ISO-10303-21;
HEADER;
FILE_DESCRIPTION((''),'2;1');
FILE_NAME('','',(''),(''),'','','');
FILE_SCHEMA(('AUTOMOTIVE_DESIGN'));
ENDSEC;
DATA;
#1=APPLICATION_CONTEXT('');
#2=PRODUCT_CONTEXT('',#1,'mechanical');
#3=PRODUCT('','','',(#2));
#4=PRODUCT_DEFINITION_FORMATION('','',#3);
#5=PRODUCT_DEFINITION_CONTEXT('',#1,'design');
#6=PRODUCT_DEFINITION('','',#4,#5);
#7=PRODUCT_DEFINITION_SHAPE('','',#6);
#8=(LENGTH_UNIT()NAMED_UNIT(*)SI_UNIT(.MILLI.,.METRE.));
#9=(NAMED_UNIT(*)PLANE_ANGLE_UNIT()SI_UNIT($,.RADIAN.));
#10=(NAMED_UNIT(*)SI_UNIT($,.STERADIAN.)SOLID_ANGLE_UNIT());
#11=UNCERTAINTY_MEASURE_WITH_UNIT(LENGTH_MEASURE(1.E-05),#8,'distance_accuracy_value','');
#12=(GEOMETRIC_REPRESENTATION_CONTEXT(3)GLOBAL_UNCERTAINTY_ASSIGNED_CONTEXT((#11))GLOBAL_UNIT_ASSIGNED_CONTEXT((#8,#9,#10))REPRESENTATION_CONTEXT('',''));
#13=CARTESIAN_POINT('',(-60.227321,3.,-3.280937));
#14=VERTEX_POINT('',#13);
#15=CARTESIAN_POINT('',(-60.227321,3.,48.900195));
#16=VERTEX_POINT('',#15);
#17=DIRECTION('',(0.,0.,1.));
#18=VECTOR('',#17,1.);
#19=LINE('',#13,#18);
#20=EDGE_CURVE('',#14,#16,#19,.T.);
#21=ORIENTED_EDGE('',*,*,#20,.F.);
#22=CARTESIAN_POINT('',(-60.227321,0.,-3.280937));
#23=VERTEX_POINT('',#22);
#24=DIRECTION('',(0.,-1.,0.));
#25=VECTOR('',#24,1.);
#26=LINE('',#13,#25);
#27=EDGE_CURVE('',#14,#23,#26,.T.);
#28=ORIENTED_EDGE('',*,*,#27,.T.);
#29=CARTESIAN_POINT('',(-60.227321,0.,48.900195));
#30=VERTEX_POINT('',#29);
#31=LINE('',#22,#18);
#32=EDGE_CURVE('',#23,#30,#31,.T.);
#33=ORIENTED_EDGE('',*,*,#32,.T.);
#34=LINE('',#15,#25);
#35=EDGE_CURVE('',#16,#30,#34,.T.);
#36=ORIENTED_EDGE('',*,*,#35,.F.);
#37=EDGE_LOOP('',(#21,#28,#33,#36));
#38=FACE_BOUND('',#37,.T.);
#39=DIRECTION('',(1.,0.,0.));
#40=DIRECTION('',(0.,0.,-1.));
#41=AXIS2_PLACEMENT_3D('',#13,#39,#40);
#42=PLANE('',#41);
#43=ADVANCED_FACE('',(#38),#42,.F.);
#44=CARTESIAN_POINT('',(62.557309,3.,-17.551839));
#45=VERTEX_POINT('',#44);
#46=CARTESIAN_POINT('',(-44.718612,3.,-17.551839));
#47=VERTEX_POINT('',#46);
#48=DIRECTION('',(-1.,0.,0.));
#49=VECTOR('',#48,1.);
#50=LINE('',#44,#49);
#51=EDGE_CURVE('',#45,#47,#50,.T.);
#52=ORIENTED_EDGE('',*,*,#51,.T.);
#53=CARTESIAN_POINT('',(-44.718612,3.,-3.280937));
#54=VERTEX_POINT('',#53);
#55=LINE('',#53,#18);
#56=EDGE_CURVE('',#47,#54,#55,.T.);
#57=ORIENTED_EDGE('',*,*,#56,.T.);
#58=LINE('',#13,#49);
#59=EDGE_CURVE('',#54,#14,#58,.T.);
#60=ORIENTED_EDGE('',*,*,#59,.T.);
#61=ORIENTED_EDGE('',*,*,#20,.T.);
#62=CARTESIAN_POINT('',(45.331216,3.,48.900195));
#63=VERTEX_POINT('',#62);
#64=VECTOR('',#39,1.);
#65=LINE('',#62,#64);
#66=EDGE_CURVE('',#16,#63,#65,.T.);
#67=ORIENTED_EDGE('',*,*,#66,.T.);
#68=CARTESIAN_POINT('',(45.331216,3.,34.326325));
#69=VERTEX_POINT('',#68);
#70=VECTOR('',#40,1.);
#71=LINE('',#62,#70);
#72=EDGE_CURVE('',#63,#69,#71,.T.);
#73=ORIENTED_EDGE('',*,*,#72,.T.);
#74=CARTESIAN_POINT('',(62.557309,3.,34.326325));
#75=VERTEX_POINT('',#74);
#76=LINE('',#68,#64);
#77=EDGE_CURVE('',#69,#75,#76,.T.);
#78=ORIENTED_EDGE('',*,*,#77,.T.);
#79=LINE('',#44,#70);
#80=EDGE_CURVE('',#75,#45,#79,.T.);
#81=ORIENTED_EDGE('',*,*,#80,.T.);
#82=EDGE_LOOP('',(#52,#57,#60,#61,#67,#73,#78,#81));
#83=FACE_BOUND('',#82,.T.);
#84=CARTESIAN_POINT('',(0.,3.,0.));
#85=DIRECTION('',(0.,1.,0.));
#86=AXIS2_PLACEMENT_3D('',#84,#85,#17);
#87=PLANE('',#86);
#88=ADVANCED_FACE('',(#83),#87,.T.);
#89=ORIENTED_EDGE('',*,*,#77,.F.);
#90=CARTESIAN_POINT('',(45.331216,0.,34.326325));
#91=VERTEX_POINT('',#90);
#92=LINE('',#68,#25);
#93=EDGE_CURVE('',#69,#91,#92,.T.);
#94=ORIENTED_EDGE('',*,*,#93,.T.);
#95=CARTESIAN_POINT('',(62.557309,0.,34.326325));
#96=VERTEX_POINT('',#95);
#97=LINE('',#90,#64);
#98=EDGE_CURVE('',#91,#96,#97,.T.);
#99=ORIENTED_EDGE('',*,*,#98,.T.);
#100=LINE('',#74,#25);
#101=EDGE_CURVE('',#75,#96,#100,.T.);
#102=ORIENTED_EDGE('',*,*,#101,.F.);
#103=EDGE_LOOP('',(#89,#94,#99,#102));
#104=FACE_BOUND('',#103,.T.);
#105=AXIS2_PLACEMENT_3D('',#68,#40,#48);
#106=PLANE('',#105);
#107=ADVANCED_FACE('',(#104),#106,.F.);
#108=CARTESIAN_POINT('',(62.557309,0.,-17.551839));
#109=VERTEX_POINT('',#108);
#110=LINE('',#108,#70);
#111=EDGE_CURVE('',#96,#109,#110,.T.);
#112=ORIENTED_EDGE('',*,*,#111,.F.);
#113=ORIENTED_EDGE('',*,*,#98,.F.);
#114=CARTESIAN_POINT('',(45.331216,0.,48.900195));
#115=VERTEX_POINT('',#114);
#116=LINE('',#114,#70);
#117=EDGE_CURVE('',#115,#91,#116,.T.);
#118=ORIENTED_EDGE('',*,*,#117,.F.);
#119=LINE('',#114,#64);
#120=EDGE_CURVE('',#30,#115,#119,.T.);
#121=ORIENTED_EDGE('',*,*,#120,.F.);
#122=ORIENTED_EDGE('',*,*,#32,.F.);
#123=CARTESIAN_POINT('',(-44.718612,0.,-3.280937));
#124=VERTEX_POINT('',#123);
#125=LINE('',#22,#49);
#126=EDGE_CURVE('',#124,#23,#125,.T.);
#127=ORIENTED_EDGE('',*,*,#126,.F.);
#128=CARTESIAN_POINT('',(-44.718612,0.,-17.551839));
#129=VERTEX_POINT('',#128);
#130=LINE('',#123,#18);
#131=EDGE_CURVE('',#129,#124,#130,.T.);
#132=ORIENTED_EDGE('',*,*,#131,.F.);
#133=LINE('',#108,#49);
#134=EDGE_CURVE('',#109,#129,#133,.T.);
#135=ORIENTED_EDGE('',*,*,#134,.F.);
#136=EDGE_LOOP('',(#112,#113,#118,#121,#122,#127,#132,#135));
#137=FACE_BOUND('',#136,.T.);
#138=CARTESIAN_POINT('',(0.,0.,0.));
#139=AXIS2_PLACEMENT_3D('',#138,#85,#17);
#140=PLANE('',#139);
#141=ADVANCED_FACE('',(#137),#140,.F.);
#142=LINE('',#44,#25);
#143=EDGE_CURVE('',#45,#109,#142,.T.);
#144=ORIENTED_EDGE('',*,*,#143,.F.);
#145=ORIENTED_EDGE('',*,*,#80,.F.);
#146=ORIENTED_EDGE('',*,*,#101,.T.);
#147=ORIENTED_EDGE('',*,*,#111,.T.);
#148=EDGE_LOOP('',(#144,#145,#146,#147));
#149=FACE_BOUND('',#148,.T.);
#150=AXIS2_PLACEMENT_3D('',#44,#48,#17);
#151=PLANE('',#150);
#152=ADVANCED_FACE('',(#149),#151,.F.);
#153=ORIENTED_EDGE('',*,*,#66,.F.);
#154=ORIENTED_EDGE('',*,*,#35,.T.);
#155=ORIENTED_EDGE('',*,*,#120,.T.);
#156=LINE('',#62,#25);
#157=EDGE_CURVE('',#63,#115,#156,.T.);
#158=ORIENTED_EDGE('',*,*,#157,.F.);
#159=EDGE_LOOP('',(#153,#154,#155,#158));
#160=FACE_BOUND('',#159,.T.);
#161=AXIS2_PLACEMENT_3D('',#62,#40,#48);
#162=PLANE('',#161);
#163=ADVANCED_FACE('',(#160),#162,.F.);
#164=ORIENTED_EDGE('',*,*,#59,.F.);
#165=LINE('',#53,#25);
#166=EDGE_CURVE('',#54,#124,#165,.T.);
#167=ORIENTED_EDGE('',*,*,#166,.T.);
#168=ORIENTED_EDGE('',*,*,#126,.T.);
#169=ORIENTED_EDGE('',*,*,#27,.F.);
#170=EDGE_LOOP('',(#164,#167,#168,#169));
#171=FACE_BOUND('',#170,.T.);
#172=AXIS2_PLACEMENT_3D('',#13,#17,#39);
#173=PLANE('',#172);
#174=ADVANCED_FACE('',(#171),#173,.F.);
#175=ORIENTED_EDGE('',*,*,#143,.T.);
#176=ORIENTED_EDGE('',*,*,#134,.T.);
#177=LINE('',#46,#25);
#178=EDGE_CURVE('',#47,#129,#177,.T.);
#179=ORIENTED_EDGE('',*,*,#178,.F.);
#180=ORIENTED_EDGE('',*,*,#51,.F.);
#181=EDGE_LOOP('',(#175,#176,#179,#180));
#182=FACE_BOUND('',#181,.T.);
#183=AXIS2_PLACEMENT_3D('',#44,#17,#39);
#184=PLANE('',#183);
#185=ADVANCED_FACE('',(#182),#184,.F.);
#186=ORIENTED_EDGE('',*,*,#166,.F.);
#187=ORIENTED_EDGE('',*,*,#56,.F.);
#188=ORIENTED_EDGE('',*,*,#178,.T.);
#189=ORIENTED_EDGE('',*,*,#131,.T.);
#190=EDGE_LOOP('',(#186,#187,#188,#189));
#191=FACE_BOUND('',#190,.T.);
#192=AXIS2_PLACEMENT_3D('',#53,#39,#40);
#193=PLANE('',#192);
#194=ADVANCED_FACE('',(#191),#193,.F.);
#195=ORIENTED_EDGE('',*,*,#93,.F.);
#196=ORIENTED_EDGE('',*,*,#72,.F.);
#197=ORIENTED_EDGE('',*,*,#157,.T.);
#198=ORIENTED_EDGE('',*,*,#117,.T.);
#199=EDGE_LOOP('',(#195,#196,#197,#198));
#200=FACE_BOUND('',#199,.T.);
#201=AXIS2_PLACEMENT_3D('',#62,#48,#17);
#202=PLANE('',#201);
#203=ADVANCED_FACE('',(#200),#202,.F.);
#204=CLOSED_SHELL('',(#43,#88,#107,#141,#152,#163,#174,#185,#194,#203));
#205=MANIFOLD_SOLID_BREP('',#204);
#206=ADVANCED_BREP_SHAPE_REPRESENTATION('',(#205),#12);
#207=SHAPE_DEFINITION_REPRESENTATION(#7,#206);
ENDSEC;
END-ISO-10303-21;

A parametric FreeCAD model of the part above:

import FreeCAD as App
import Part
import Sketcher
from FreeCAD import Vector
Q = App.Units.Quantity

doc = App.newDocument("Part")
params = doc.addObject("Spreadsheet::Sheet", "Params")
for row, (alias, value) in enumerate([
    ("pad1_length", "3 mm"),
], start=1):
    params.set(f"A{row}", alias)
    params.set(f"B{row}", "=" + value)
    params.setAlias(f"B{row}", alias)

body = doc.addObject("PartDesign::Body", "Body")

# Sketch on XZ plane
sketch1 = doc.addObject("Sketcher::SketchObject", "Sketch")
body.addObject(sketch1)
sketch1.AttachmentSupport = (doc.XZ_Plane, [""])
sketch1.MapMode = "FlatFace"
sketch1.addGeometry([
    Part.LineSegment(Vector(45.331216, 48.900195, 0), Vector(45.331216, 34.326325, 0)),  # 0
    Part.LineSegment(Vector(45.331216, 34.326325, 0), Vector(62.557309, 34.326325, 0)),  # 1
    Part.LineSegment(Vector(62.557309, 34.326325, 0), Vector(62.557309, -17.551839, 0)),  # 2
    Part.LineSegment(Vector(62.557309, -17.551839, 0), Vector(-44.718612, -17.551839, 0)),  # 3
    Part.LineSegment(Vector(-44.718612, -17.551839, 0), Vector(-44.718612, -3.280937, 0)),  # 4
    Part.LineSegment(Vector(-44.718612, -3.280937, 0), Vector(-60.227321, -3.280937, 0)),  # 5
    Part.LineSegment(Vector(-60.227321, -3.280937, 0), Vector(-60.227321, 48.900195, 0)),  # 6
    Part.LineSegment(Vector(-60.227321, 48.900195, 0), Vector(45.331216, 48.900195, 0)),  # 7
], False)
sketch1.addConstraint([
    Sketcher.Constraint("Coincident", 0, 2, 1, 1),
    Sketcher.Constraint("Coincident", 1, 2, 2, 1),
    Sketcher.Constraint("Coincident", 2, 2, 3, 1),
    Sketcher.Constraint("Coincident", 3, 2, 4, 1),
    Sketcher.Constraint("Coincident", 4, 2, 5, 1),
    Sketcher.Constraint("Coincident", 5, 2, 6, 1),
    Sketcher.Constraint("Coincident", 6, 2, 7, 1),
    Sketcher.Constraint("Coincident", 7, 2, 0, 1),
    Sketcher.Constraint("Vertical", 0),
    Sketcher.Constraint("Horizontal", 1),
    Sketcher.Constraint("Vertical", 2),
    Sketcher.Constraint("Horizontal", 3),
    Sketcher.Constraint("Vertical", 4),
    Sketcher.Constraint("Horizontal", 5),
    Sketcher.Constraint("Vertical", 6),
    Sketcher.Constraint("Horizontal", 7),
    Sketcher.Constraint("DistanceX", 3, 2, 3, 1, Q("107.27592 mm")),
    Sketcher.Constraint("DistanceX", 5, 2, 5, 1, Q("15.50871 mm")),
    Sketcher.Constraint("DistanceY", 0, 2, 0, 1, Q("14.57387 mm")),
    Sketcher.Constraint("DistanceY", 6, 1, 6, 2, Q("52.181132 mm")),
    Sketcher.Constraint("DistanceX", 1, 1, 1, 2, Q("17.226093 mm")),
    Sketcher.Constraint("DistanceY", 2, 2, 2, 1, Q("51.878164 mm")),
    Sketcher.Constraint("DistanceX", -1, 1, 1, 2, Q("62.557309 mm")),
    Sketcher.Constraint("DistanceY", 2, 2, -1, 1, Q("17.551839 mm")),
])
pad1 = doc.addObject("PartDesign::Pad", "Pad")
body.addObject(pad1)
pad1.Profile = sketch1
pad1.setExpression("Length", "Params.pad1_length")
pad1.Reversed = True

doc.recompute()
